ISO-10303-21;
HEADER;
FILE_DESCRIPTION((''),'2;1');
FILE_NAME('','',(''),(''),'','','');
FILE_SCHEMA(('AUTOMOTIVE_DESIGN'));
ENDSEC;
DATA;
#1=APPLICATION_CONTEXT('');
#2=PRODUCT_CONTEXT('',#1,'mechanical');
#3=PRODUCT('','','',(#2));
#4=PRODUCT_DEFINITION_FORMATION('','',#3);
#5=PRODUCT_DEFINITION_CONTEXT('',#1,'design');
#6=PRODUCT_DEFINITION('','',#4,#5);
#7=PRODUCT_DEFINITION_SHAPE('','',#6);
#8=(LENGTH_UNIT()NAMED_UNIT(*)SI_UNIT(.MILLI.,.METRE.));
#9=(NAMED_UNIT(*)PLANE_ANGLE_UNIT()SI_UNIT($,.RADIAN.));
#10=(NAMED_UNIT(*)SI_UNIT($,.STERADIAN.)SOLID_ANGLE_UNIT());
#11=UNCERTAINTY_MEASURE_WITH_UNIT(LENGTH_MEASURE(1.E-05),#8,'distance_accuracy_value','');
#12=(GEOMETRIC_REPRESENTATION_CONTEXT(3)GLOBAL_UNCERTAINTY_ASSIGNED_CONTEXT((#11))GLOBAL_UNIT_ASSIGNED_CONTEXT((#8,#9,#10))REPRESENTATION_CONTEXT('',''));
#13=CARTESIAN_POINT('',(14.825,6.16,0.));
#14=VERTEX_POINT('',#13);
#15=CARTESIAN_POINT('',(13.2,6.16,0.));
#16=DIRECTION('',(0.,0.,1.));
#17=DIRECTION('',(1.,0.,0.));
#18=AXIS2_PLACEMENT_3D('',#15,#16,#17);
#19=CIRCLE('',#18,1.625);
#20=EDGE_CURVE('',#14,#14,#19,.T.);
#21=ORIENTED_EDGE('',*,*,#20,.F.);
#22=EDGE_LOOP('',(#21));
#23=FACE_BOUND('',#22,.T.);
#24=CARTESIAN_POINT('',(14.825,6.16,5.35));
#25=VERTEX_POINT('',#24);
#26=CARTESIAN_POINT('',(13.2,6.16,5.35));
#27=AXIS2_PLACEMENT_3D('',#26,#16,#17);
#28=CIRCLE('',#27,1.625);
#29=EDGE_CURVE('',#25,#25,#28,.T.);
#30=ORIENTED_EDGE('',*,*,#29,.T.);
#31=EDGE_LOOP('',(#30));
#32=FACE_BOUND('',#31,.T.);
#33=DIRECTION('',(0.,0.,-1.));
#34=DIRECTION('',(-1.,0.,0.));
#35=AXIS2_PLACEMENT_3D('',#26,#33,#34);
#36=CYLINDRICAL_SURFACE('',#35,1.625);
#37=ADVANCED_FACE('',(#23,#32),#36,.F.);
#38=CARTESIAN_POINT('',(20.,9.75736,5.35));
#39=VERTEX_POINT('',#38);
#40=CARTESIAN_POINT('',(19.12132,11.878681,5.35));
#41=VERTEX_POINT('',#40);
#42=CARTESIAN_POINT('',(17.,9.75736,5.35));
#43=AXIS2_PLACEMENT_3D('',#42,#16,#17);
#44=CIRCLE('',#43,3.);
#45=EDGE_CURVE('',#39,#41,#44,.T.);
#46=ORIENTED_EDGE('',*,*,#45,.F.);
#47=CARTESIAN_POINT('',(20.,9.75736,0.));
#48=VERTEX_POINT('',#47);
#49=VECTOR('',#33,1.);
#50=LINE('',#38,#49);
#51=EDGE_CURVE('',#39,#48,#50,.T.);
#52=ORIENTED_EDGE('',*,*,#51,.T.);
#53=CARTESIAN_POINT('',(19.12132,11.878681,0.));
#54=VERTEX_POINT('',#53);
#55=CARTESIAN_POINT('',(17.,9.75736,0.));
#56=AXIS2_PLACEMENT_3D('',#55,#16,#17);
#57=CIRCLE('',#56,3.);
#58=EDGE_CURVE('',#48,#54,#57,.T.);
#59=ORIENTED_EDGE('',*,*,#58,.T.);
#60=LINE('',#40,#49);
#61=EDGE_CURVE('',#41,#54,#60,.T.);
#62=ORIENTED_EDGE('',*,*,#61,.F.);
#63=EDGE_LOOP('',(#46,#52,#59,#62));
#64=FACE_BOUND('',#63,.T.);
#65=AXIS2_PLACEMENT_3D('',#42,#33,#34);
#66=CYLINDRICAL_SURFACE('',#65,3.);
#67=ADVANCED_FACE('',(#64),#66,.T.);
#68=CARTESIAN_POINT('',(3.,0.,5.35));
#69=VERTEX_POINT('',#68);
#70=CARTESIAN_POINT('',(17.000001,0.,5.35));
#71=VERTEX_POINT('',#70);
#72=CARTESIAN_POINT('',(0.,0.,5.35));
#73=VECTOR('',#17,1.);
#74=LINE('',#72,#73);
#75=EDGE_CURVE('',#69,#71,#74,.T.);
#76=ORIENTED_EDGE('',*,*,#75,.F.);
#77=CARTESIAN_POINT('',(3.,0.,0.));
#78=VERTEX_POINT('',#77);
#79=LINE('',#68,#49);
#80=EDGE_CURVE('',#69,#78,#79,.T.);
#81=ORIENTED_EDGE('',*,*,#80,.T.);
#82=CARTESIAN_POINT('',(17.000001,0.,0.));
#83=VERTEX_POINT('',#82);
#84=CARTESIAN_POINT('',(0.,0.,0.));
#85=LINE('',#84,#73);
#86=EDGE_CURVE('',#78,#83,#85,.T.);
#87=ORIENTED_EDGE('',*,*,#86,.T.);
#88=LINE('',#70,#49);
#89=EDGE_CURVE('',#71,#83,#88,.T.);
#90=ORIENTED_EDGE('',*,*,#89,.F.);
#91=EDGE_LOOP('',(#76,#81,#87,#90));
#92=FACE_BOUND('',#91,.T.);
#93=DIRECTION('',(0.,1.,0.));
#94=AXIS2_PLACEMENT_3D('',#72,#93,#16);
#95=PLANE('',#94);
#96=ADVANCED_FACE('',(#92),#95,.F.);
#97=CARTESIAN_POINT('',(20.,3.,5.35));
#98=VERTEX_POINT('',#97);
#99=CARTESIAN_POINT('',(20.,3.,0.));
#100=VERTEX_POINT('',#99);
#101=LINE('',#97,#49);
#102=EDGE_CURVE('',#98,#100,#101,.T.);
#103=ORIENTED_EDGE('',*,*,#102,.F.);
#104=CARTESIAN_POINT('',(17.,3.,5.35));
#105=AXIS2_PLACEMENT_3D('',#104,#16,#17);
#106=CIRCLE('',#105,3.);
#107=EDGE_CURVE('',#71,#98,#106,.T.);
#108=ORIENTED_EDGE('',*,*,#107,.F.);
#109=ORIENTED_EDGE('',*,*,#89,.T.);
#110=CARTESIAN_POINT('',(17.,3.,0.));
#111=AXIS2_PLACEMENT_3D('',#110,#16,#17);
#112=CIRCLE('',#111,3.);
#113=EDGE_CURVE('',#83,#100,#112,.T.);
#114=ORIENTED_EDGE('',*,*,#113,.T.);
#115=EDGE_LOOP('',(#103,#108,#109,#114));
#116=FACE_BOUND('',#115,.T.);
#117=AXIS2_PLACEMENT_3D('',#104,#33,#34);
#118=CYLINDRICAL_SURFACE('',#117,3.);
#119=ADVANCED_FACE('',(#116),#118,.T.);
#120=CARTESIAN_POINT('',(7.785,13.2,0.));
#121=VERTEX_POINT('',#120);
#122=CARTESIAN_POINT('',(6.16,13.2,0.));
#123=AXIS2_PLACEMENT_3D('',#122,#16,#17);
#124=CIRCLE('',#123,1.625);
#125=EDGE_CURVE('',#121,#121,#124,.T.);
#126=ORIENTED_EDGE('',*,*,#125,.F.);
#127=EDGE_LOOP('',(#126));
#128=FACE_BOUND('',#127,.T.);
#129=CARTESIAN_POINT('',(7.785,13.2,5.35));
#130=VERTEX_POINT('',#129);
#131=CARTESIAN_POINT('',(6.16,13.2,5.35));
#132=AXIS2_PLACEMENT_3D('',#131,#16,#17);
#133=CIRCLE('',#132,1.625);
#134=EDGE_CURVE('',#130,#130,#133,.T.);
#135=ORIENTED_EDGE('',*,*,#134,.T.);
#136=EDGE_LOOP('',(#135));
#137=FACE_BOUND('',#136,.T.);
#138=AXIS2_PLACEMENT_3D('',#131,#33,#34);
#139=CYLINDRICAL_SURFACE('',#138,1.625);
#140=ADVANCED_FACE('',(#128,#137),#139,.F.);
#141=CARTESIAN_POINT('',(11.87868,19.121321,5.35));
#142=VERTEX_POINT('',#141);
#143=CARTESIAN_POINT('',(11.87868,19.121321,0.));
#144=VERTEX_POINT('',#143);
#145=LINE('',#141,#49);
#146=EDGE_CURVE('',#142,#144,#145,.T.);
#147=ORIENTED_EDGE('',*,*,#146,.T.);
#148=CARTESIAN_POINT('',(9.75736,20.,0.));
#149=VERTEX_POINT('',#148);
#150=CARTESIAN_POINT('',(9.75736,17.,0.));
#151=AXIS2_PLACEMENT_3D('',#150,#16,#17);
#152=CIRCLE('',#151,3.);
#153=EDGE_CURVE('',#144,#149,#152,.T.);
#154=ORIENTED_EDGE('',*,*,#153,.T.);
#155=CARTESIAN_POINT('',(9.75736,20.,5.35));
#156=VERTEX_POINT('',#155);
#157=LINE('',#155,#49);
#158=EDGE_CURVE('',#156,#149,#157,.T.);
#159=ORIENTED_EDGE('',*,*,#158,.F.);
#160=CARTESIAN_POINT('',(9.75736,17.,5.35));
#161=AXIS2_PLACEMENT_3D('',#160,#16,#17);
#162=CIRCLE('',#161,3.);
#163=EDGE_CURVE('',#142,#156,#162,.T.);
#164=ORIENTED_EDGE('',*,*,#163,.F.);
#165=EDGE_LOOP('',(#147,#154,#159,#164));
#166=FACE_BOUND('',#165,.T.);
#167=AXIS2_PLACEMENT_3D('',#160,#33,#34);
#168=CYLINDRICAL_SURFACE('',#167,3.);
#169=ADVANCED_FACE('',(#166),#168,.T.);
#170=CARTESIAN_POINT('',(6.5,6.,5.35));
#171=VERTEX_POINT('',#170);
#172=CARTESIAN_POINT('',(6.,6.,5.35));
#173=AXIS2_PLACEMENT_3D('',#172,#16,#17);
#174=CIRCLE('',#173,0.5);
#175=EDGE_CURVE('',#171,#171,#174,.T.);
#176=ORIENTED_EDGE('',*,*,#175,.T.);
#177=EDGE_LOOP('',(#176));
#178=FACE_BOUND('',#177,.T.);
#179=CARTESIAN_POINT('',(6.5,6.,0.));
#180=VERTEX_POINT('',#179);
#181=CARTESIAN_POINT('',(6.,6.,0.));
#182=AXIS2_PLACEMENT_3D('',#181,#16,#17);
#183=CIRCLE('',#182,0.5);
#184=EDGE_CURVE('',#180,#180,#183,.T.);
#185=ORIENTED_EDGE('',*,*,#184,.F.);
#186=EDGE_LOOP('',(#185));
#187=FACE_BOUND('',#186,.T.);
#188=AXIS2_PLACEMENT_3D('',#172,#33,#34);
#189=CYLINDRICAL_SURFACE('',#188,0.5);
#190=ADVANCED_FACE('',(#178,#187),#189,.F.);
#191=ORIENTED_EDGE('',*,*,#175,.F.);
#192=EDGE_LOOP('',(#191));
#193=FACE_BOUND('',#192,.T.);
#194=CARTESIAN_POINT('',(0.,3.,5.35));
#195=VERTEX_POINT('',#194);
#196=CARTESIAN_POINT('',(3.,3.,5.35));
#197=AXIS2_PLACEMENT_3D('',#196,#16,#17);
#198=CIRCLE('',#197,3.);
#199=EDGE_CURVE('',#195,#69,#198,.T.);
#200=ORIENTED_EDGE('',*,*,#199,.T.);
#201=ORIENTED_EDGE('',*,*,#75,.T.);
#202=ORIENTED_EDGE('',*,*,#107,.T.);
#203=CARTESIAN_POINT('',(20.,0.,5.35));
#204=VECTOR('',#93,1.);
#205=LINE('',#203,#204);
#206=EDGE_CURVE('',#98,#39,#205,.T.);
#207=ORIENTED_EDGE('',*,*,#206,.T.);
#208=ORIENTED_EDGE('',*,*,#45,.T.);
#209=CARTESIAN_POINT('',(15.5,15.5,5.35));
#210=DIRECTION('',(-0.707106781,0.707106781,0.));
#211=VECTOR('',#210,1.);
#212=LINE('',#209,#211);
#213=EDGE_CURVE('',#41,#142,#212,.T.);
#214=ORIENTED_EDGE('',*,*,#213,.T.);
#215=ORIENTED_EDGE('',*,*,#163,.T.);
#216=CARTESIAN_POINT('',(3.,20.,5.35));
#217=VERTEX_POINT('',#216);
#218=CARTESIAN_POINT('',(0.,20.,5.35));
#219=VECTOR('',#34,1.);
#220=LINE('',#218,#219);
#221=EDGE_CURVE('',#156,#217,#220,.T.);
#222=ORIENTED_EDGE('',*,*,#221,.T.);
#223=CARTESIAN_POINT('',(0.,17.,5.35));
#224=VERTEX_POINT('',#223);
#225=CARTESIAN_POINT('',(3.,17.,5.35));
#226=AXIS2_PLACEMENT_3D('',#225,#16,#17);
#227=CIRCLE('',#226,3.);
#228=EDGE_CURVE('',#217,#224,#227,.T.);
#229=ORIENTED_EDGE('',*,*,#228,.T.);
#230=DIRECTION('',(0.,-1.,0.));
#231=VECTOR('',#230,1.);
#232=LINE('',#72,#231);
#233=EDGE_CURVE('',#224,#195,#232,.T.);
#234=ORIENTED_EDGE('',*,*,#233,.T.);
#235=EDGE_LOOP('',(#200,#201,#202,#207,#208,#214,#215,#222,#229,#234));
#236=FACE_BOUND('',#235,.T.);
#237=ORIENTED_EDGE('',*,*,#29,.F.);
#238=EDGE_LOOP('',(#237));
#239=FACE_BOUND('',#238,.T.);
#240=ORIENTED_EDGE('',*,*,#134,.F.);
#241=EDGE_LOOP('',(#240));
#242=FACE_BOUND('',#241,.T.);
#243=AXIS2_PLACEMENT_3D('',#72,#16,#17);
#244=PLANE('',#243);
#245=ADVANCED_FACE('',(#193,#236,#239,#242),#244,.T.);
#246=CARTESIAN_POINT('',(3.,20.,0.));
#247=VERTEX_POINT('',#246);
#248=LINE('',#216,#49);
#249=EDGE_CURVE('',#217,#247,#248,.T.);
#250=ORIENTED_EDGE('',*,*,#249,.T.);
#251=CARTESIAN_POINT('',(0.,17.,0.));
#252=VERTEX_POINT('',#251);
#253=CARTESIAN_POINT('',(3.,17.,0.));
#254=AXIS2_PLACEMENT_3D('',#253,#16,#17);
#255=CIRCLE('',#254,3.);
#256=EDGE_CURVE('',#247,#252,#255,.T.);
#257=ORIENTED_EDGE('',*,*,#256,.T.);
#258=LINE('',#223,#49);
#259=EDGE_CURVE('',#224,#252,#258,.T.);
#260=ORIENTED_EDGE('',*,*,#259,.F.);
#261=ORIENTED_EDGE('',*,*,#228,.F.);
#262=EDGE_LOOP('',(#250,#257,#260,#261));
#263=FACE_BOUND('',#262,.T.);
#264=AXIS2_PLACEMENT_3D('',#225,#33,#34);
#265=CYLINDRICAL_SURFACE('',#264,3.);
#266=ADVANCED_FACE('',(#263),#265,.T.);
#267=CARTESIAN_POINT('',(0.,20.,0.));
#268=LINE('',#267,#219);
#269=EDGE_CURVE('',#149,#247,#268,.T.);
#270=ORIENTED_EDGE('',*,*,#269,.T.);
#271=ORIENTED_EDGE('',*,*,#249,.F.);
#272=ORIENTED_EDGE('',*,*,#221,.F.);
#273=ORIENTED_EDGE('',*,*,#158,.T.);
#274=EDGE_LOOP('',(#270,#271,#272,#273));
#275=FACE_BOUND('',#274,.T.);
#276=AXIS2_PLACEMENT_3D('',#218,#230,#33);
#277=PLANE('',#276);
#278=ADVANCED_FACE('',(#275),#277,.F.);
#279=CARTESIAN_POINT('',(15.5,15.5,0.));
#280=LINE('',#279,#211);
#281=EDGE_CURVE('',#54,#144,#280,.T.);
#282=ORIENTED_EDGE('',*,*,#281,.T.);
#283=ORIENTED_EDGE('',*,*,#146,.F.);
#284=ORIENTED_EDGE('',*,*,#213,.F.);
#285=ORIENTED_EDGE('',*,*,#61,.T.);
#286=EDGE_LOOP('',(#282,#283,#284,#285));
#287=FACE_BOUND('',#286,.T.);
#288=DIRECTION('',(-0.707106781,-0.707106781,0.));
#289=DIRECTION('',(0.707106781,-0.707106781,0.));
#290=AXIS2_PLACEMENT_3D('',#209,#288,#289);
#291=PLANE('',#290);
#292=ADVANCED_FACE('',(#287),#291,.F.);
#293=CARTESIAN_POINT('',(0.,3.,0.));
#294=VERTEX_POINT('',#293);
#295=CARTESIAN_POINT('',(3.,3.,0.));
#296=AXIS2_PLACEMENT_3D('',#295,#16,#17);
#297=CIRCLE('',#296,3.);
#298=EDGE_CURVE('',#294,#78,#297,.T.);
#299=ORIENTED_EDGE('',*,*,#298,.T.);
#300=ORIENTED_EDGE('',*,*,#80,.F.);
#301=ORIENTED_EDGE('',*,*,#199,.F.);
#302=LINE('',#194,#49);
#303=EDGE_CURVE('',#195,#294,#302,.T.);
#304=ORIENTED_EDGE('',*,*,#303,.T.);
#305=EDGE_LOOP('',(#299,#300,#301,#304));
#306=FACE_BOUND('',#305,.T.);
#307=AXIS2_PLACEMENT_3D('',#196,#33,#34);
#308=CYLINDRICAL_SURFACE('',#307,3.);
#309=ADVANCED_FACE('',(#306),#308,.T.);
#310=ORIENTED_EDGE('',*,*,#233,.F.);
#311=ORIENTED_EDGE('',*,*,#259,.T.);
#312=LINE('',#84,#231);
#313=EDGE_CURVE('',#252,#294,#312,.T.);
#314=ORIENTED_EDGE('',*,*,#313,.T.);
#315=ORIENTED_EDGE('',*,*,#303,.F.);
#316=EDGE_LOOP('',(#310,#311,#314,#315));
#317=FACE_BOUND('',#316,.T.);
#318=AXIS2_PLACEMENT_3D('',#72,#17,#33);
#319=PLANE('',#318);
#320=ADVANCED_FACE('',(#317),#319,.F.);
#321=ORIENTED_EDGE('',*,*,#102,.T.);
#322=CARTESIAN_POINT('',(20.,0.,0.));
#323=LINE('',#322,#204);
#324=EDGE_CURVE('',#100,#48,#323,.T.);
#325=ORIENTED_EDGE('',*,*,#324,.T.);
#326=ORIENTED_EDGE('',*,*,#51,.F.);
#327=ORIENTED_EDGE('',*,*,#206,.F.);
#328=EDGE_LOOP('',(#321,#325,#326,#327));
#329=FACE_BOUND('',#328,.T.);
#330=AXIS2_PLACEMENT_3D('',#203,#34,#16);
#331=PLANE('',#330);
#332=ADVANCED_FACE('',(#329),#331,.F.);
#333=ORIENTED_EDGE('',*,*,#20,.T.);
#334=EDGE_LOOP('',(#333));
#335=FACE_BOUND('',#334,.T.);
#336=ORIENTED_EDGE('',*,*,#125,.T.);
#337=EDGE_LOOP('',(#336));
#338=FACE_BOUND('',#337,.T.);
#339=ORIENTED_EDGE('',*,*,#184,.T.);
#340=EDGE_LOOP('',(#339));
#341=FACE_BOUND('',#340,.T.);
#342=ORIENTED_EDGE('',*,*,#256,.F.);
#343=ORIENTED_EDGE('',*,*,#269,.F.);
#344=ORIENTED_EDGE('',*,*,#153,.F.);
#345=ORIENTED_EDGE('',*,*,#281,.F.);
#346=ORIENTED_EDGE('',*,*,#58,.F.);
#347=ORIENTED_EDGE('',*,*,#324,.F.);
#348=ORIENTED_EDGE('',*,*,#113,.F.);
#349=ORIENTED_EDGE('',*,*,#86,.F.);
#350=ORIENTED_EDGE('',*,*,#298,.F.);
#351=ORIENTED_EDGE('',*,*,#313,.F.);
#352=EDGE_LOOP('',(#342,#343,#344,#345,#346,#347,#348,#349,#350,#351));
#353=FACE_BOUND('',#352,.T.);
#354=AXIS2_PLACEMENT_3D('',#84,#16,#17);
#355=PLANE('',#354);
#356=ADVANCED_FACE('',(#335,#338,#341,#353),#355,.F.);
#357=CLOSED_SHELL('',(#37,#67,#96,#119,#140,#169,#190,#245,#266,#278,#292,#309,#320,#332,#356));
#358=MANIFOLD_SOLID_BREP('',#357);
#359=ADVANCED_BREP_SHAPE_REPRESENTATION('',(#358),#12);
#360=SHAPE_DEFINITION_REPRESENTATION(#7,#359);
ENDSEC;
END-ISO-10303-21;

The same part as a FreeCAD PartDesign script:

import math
import FreeCAD as App
import Part
import Sketcher
from FreeCAD import Vector
Q = App.Units.Quantity

doc = App.newDocument("Part")
params = doc.addObject("Spreadsheet::Sheet", "Params")
for row, (alias, value) in enumerate([
    ("sketch1_diameter", "1 mm"),
    ("sketch1_radius", "3 mm"),
    ("sketch1_diameter2", "3.25 mm"),
    ("sketch1_width", "14.000001 mm"),
    ("pad1_length", "5.35 mm"),
], start=1):
    params.set(f"A{row}", alias)
    params.set(f"B{row}", "=" + value)
    params.setAlias(f"B{row}", alias)

body = doc.addObject("PartDesign::Body", "Body")

sketch1 = doc.addObject("Sketcher::SketchObject", "Sketch")
body.addObject(sketch1)
sketch1.AttachmentSupport = (doc.XY_Plane, [""])
sketch1.MapMode = "FlatFace"
sketch1.addGeometry([
    Part.LineSegment(Vector(0, 17, 0), Vector(0, 3, 0)),
    Part.ArcOfCircle(Part.Circle(Vector(3, 3, 0), Vector(0, 0, 1), 3), math.radians(180), math.radians(270)),
    Part.LineSegment(Vector(3, 0, 0), Vector(17, 0, 0)),
    Part.ArcOfCircle(Part.Circle(Vector(17, 3, 0), Vector(0, 0, 1), 3), math.radians(-90), math.radians(0)),
    Part.LineSegment(Vector(20, 3, 0), Vector(20, 9.8, 0)),
    Part.ArcOfCircle(Part.Circle(Vector(17, 9.8, 0), Vector(0, 0, 1), 3), math.radians(0), math.radians(45)),
    Part.LineSegment(Vector(19.1, 11.9, 0), Vector(11.9, 19.1, 0)),
    Part.ArcOfCircle(Part.Circle(Vector(9.8, 17, 0), Vector(0, 0, 1), 3), math.radians(45), math.radians(90)),
    Part.LineSegment(Vector(9.8, 20, 0), Vector(3, 20, 0)),
    Part.ArcOfCircle(Part.Circle(Vector(3, 17, 0), Vector(0, 0, 1), 3), math.radians(90), math.radians(180)),
    Part.Circle(Vector(6, 6, 0), Vector(0, 0, 1), 0.5),
    Part.Circle(Vector(13.2, 6.2, 0), Vector(0, 0, 1), 1.6),
    Part.Circle(Vector(6.2, 13.2, 0), Vector(0, 0, 1), 1.6),
], False)
sketch1.addConstraint([
    Sketcher.Constraint("Tangent", 0, 2, 1, 1),
    Sketcher.Constraint("Tangent", 1, 2, 2, 1),
    Sketcher.Constraint("Tangent", 2, 2, 3, 1),
    Sketcher.Constraint("Tangent", 3, 2, 4, 1),
    Sketcher.Constraint("Tangent", 4, 2, 5, 1),
    Sketcher.Constraint("Tangent", 5, 2, 6, 1),
    Sketcher.Constraint("Tangent", 6, 2, 7, 1),
    Sketcher.Constraint("Tangent", 7, 2, 8, 1),
    Sketcher.Constraint("Tangent", 8, 2, 9, 1),
    Sketcher.Constraint("Tangent", 9, 2, 0, 1),
    Sketcher.Constraint("Vertical", 0),
    Sketcher.Constraint("Horizontal", 2),
    Sketcher.Constraint("Vertical", 4),
    Sketcher.Constraint("Horizontal", 8),
    Sketcher.Constraint("Equal", 1, 3),
    Sketcher.Constraint("Equal", 3, 5),
    Sketcher.Constraint("Equal", 5, 7),
    Sketcher.Constraint("Equal", 7, 9),
    Sketcher.Constraint("Equal", 11, 12),
    Sketcher.Constraint("PointOnObject", 0, 2, -2),
    Sketcher.Constraint("PointOnObject", 1, 2, -1),
    Sketcher.Constraint("Equal", 2, 0),
    Sketcher.Constraint("Equal", 8, 4),
    Sketcher.Constraint("Diameter", 10, Q("1 mm")),
    Sketcher.Constraint("Radius", 1, Q("3 mm")),
    Sketcher.Constraint("Diameter", 11, Q("3.25 mm")),
    Sketcher.Constraint("DistanceX", 2, 1, 2, 2, Q("14.000001 mm")),
    Sketcher.Constraint("DistanceX", -1, 1, 10, 3, Q("6 mm")),
    Sketcher.Constraint("DistanceY", -1, 1, 10, 3, Q("6 mm")),
    Sketcher.Constraint("DistanceX", -1, 1, 11, 3, Q("13.2 mm")),
    Sketcher.Constraint("DistanceY", -1, 1, 12, 3, Q("13.2 mm")),
    Sketcher.Constraint("DistanceY", -1, 1, 11, 3, Q("6.16 mm")),
    Sketcher.Constraint("DistanceX", -1, 1, 12, 3, Q("6.16 mm")),
    Sketcher.Constraint("DistanceX", 8, 2, 8, 1, Q("6.75736 mm")),
])
sketch1.setExpression("Constraints[23]", "Params.sketch1_diameter")
sketch1.setExpression("Constraints[24]", "Params.sketch1_radius")
sketch1.setExpression("Constraints[25]", "Params.sketch1_diameter2")
sketch1.setExpression("Constraints[26]", "Params.sketch1_width")
pad1 = doc.addObject("PartDesign::Pad", "Pad")
body.addObject(pad1)
pad1.Profile = sketch1
pad1.setExpression("Length", "Params.pad1_length")

doc.recompute()
